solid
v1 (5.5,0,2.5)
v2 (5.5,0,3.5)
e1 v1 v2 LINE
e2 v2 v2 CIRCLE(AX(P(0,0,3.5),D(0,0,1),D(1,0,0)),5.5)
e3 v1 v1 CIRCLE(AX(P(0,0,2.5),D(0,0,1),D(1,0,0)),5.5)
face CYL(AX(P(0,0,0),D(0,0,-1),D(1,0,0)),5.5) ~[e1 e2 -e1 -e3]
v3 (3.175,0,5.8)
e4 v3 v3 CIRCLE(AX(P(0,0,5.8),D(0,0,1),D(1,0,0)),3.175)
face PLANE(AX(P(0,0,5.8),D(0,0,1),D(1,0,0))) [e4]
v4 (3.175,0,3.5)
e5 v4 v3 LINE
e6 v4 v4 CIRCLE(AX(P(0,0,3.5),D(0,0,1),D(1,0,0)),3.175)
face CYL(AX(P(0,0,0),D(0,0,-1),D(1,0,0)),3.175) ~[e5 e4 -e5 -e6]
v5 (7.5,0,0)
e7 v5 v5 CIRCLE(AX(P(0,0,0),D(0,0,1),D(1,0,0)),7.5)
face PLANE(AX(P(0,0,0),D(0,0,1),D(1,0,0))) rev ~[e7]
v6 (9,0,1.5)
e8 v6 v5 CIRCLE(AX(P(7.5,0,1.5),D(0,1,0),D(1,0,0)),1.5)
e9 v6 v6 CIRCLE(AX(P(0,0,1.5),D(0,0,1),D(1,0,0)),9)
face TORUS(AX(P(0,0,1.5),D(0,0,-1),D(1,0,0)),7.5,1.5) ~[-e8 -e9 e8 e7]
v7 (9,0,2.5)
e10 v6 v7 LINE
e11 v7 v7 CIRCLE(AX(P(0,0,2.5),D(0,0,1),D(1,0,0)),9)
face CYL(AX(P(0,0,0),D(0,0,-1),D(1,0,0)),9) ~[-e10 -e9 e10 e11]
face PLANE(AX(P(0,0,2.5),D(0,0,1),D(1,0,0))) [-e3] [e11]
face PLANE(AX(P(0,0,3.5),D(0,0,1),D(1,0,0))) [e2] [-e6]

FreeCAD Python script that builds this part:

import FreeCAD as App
import Part
import Sketcher
from FreeCAD import Vector
Q = App.Units.Quantity


def edges_at(feature, points):
    """Names of the edges that pass closest to the given points."""
    edges = feature.Shape.Edges
    near = lambda p: min(range(len(edges)), key=lambda i: edges[i].distToShape(Part.Vertex(*p))[0])
    return sorted({f"Edge{near(p) + 1}" for p in points})

doc = App.newDocument("Part")
body = doc.addObject("PartDesign::Body", "Body")

# Sketch on XY plane
sketch1 = body.newObject("Sketcher::SketchObject", "Sketch")
sketch1.AttachmentSupport = (doc.getObject("XY_Plane"), [""])
sketch1.MapMode = "FlatFace"
sketch1.addGeometry([
    Part.Circle(Vector(0, 0, 0), Vector(0, 0, 1), 9),
    Part.Circle(Vector(0, 0, 0), Vector(0, 0, 1), 5.5),
], False)
sketch1.addConstraint([
    Sketcher.Constraint("Coincident", 0, 3, -1, 1),
    Sketcher.Constraint("Coincident", 1, 3, -1, 1),
    Sketcher.Constraint("Diameter", 0, Q("18 mm")),
    Sketcher.Constraint("Diameter", 1, Q("11 mm")),
])
pad1 = body.newObject("PartDesign::Pad", "Pad")
pad1.Profile = sketch1
pad1.Length = 2.5

# Sketch on XY plane
sketch2 = body.newObject("Sketcher::SketchObject", "Sketch001")
sketch2.AttachmentSupport = (doc.getObject("XY_Plane"), [""])
sketch2.MapMode = "FlatFace"
sketch2.addGeometry([
    Part.Circle(Vector(0, 0, 0), Vector(0, 0, 1), 5.5),
    Part.Circle(Vector(0, 0, 0), Vector(0, 0, 1), 3.175),
], False)
sketch2.addConstraint([
    Sketcher.Constraint("Coincident", 0, 3, -1, 1),
    Sketcher.Constraint("Coincident", 1, 3, -1, 1),
    Sketcher.Constraint("Diameter", 0, Q("11 mm")),
    Sketcher.Constraint("Diameter", 1, Q("6.35 mm")),
])
pad2 = body.newObject("PartDesign::Pad", "Pad001")
pad2.Profile = sketch2
pad2.Length = 3.5

# Sketch on XY plane
sketch3 = body.newObject("Sketcher::SketchObject", "Sketch002")
sketch3.AttachmentSupport = (doc.getObject("XY_Plane"), [""])
sketch3.MapMode = "FlatFace"
sketch3.addGeometry(Part.Circle(Vector(0, 0, 0), Vector(0, 0, 1), 3.175), False)
sketch3.addConstraint([
    Sketcher.Constraint("Coincident", 0, 3, -1, 1),
    Sketcher.Constraint("Diameter", 0, Q("6.35 mm")),
])
pad3 = body.newObject("PartDesign::Pad", "Pad002")
pad3.Profile = sketch3
pad3.Length = 5.8
doc.recompute()

fillet = body.newObject("PartDesign::Fillet", "Fillet")
fillet.Base = (pad3, edges_at(pad3, [(-9, 0, 0)]))
fillet.Radius = 1.5

doc.recompute()
